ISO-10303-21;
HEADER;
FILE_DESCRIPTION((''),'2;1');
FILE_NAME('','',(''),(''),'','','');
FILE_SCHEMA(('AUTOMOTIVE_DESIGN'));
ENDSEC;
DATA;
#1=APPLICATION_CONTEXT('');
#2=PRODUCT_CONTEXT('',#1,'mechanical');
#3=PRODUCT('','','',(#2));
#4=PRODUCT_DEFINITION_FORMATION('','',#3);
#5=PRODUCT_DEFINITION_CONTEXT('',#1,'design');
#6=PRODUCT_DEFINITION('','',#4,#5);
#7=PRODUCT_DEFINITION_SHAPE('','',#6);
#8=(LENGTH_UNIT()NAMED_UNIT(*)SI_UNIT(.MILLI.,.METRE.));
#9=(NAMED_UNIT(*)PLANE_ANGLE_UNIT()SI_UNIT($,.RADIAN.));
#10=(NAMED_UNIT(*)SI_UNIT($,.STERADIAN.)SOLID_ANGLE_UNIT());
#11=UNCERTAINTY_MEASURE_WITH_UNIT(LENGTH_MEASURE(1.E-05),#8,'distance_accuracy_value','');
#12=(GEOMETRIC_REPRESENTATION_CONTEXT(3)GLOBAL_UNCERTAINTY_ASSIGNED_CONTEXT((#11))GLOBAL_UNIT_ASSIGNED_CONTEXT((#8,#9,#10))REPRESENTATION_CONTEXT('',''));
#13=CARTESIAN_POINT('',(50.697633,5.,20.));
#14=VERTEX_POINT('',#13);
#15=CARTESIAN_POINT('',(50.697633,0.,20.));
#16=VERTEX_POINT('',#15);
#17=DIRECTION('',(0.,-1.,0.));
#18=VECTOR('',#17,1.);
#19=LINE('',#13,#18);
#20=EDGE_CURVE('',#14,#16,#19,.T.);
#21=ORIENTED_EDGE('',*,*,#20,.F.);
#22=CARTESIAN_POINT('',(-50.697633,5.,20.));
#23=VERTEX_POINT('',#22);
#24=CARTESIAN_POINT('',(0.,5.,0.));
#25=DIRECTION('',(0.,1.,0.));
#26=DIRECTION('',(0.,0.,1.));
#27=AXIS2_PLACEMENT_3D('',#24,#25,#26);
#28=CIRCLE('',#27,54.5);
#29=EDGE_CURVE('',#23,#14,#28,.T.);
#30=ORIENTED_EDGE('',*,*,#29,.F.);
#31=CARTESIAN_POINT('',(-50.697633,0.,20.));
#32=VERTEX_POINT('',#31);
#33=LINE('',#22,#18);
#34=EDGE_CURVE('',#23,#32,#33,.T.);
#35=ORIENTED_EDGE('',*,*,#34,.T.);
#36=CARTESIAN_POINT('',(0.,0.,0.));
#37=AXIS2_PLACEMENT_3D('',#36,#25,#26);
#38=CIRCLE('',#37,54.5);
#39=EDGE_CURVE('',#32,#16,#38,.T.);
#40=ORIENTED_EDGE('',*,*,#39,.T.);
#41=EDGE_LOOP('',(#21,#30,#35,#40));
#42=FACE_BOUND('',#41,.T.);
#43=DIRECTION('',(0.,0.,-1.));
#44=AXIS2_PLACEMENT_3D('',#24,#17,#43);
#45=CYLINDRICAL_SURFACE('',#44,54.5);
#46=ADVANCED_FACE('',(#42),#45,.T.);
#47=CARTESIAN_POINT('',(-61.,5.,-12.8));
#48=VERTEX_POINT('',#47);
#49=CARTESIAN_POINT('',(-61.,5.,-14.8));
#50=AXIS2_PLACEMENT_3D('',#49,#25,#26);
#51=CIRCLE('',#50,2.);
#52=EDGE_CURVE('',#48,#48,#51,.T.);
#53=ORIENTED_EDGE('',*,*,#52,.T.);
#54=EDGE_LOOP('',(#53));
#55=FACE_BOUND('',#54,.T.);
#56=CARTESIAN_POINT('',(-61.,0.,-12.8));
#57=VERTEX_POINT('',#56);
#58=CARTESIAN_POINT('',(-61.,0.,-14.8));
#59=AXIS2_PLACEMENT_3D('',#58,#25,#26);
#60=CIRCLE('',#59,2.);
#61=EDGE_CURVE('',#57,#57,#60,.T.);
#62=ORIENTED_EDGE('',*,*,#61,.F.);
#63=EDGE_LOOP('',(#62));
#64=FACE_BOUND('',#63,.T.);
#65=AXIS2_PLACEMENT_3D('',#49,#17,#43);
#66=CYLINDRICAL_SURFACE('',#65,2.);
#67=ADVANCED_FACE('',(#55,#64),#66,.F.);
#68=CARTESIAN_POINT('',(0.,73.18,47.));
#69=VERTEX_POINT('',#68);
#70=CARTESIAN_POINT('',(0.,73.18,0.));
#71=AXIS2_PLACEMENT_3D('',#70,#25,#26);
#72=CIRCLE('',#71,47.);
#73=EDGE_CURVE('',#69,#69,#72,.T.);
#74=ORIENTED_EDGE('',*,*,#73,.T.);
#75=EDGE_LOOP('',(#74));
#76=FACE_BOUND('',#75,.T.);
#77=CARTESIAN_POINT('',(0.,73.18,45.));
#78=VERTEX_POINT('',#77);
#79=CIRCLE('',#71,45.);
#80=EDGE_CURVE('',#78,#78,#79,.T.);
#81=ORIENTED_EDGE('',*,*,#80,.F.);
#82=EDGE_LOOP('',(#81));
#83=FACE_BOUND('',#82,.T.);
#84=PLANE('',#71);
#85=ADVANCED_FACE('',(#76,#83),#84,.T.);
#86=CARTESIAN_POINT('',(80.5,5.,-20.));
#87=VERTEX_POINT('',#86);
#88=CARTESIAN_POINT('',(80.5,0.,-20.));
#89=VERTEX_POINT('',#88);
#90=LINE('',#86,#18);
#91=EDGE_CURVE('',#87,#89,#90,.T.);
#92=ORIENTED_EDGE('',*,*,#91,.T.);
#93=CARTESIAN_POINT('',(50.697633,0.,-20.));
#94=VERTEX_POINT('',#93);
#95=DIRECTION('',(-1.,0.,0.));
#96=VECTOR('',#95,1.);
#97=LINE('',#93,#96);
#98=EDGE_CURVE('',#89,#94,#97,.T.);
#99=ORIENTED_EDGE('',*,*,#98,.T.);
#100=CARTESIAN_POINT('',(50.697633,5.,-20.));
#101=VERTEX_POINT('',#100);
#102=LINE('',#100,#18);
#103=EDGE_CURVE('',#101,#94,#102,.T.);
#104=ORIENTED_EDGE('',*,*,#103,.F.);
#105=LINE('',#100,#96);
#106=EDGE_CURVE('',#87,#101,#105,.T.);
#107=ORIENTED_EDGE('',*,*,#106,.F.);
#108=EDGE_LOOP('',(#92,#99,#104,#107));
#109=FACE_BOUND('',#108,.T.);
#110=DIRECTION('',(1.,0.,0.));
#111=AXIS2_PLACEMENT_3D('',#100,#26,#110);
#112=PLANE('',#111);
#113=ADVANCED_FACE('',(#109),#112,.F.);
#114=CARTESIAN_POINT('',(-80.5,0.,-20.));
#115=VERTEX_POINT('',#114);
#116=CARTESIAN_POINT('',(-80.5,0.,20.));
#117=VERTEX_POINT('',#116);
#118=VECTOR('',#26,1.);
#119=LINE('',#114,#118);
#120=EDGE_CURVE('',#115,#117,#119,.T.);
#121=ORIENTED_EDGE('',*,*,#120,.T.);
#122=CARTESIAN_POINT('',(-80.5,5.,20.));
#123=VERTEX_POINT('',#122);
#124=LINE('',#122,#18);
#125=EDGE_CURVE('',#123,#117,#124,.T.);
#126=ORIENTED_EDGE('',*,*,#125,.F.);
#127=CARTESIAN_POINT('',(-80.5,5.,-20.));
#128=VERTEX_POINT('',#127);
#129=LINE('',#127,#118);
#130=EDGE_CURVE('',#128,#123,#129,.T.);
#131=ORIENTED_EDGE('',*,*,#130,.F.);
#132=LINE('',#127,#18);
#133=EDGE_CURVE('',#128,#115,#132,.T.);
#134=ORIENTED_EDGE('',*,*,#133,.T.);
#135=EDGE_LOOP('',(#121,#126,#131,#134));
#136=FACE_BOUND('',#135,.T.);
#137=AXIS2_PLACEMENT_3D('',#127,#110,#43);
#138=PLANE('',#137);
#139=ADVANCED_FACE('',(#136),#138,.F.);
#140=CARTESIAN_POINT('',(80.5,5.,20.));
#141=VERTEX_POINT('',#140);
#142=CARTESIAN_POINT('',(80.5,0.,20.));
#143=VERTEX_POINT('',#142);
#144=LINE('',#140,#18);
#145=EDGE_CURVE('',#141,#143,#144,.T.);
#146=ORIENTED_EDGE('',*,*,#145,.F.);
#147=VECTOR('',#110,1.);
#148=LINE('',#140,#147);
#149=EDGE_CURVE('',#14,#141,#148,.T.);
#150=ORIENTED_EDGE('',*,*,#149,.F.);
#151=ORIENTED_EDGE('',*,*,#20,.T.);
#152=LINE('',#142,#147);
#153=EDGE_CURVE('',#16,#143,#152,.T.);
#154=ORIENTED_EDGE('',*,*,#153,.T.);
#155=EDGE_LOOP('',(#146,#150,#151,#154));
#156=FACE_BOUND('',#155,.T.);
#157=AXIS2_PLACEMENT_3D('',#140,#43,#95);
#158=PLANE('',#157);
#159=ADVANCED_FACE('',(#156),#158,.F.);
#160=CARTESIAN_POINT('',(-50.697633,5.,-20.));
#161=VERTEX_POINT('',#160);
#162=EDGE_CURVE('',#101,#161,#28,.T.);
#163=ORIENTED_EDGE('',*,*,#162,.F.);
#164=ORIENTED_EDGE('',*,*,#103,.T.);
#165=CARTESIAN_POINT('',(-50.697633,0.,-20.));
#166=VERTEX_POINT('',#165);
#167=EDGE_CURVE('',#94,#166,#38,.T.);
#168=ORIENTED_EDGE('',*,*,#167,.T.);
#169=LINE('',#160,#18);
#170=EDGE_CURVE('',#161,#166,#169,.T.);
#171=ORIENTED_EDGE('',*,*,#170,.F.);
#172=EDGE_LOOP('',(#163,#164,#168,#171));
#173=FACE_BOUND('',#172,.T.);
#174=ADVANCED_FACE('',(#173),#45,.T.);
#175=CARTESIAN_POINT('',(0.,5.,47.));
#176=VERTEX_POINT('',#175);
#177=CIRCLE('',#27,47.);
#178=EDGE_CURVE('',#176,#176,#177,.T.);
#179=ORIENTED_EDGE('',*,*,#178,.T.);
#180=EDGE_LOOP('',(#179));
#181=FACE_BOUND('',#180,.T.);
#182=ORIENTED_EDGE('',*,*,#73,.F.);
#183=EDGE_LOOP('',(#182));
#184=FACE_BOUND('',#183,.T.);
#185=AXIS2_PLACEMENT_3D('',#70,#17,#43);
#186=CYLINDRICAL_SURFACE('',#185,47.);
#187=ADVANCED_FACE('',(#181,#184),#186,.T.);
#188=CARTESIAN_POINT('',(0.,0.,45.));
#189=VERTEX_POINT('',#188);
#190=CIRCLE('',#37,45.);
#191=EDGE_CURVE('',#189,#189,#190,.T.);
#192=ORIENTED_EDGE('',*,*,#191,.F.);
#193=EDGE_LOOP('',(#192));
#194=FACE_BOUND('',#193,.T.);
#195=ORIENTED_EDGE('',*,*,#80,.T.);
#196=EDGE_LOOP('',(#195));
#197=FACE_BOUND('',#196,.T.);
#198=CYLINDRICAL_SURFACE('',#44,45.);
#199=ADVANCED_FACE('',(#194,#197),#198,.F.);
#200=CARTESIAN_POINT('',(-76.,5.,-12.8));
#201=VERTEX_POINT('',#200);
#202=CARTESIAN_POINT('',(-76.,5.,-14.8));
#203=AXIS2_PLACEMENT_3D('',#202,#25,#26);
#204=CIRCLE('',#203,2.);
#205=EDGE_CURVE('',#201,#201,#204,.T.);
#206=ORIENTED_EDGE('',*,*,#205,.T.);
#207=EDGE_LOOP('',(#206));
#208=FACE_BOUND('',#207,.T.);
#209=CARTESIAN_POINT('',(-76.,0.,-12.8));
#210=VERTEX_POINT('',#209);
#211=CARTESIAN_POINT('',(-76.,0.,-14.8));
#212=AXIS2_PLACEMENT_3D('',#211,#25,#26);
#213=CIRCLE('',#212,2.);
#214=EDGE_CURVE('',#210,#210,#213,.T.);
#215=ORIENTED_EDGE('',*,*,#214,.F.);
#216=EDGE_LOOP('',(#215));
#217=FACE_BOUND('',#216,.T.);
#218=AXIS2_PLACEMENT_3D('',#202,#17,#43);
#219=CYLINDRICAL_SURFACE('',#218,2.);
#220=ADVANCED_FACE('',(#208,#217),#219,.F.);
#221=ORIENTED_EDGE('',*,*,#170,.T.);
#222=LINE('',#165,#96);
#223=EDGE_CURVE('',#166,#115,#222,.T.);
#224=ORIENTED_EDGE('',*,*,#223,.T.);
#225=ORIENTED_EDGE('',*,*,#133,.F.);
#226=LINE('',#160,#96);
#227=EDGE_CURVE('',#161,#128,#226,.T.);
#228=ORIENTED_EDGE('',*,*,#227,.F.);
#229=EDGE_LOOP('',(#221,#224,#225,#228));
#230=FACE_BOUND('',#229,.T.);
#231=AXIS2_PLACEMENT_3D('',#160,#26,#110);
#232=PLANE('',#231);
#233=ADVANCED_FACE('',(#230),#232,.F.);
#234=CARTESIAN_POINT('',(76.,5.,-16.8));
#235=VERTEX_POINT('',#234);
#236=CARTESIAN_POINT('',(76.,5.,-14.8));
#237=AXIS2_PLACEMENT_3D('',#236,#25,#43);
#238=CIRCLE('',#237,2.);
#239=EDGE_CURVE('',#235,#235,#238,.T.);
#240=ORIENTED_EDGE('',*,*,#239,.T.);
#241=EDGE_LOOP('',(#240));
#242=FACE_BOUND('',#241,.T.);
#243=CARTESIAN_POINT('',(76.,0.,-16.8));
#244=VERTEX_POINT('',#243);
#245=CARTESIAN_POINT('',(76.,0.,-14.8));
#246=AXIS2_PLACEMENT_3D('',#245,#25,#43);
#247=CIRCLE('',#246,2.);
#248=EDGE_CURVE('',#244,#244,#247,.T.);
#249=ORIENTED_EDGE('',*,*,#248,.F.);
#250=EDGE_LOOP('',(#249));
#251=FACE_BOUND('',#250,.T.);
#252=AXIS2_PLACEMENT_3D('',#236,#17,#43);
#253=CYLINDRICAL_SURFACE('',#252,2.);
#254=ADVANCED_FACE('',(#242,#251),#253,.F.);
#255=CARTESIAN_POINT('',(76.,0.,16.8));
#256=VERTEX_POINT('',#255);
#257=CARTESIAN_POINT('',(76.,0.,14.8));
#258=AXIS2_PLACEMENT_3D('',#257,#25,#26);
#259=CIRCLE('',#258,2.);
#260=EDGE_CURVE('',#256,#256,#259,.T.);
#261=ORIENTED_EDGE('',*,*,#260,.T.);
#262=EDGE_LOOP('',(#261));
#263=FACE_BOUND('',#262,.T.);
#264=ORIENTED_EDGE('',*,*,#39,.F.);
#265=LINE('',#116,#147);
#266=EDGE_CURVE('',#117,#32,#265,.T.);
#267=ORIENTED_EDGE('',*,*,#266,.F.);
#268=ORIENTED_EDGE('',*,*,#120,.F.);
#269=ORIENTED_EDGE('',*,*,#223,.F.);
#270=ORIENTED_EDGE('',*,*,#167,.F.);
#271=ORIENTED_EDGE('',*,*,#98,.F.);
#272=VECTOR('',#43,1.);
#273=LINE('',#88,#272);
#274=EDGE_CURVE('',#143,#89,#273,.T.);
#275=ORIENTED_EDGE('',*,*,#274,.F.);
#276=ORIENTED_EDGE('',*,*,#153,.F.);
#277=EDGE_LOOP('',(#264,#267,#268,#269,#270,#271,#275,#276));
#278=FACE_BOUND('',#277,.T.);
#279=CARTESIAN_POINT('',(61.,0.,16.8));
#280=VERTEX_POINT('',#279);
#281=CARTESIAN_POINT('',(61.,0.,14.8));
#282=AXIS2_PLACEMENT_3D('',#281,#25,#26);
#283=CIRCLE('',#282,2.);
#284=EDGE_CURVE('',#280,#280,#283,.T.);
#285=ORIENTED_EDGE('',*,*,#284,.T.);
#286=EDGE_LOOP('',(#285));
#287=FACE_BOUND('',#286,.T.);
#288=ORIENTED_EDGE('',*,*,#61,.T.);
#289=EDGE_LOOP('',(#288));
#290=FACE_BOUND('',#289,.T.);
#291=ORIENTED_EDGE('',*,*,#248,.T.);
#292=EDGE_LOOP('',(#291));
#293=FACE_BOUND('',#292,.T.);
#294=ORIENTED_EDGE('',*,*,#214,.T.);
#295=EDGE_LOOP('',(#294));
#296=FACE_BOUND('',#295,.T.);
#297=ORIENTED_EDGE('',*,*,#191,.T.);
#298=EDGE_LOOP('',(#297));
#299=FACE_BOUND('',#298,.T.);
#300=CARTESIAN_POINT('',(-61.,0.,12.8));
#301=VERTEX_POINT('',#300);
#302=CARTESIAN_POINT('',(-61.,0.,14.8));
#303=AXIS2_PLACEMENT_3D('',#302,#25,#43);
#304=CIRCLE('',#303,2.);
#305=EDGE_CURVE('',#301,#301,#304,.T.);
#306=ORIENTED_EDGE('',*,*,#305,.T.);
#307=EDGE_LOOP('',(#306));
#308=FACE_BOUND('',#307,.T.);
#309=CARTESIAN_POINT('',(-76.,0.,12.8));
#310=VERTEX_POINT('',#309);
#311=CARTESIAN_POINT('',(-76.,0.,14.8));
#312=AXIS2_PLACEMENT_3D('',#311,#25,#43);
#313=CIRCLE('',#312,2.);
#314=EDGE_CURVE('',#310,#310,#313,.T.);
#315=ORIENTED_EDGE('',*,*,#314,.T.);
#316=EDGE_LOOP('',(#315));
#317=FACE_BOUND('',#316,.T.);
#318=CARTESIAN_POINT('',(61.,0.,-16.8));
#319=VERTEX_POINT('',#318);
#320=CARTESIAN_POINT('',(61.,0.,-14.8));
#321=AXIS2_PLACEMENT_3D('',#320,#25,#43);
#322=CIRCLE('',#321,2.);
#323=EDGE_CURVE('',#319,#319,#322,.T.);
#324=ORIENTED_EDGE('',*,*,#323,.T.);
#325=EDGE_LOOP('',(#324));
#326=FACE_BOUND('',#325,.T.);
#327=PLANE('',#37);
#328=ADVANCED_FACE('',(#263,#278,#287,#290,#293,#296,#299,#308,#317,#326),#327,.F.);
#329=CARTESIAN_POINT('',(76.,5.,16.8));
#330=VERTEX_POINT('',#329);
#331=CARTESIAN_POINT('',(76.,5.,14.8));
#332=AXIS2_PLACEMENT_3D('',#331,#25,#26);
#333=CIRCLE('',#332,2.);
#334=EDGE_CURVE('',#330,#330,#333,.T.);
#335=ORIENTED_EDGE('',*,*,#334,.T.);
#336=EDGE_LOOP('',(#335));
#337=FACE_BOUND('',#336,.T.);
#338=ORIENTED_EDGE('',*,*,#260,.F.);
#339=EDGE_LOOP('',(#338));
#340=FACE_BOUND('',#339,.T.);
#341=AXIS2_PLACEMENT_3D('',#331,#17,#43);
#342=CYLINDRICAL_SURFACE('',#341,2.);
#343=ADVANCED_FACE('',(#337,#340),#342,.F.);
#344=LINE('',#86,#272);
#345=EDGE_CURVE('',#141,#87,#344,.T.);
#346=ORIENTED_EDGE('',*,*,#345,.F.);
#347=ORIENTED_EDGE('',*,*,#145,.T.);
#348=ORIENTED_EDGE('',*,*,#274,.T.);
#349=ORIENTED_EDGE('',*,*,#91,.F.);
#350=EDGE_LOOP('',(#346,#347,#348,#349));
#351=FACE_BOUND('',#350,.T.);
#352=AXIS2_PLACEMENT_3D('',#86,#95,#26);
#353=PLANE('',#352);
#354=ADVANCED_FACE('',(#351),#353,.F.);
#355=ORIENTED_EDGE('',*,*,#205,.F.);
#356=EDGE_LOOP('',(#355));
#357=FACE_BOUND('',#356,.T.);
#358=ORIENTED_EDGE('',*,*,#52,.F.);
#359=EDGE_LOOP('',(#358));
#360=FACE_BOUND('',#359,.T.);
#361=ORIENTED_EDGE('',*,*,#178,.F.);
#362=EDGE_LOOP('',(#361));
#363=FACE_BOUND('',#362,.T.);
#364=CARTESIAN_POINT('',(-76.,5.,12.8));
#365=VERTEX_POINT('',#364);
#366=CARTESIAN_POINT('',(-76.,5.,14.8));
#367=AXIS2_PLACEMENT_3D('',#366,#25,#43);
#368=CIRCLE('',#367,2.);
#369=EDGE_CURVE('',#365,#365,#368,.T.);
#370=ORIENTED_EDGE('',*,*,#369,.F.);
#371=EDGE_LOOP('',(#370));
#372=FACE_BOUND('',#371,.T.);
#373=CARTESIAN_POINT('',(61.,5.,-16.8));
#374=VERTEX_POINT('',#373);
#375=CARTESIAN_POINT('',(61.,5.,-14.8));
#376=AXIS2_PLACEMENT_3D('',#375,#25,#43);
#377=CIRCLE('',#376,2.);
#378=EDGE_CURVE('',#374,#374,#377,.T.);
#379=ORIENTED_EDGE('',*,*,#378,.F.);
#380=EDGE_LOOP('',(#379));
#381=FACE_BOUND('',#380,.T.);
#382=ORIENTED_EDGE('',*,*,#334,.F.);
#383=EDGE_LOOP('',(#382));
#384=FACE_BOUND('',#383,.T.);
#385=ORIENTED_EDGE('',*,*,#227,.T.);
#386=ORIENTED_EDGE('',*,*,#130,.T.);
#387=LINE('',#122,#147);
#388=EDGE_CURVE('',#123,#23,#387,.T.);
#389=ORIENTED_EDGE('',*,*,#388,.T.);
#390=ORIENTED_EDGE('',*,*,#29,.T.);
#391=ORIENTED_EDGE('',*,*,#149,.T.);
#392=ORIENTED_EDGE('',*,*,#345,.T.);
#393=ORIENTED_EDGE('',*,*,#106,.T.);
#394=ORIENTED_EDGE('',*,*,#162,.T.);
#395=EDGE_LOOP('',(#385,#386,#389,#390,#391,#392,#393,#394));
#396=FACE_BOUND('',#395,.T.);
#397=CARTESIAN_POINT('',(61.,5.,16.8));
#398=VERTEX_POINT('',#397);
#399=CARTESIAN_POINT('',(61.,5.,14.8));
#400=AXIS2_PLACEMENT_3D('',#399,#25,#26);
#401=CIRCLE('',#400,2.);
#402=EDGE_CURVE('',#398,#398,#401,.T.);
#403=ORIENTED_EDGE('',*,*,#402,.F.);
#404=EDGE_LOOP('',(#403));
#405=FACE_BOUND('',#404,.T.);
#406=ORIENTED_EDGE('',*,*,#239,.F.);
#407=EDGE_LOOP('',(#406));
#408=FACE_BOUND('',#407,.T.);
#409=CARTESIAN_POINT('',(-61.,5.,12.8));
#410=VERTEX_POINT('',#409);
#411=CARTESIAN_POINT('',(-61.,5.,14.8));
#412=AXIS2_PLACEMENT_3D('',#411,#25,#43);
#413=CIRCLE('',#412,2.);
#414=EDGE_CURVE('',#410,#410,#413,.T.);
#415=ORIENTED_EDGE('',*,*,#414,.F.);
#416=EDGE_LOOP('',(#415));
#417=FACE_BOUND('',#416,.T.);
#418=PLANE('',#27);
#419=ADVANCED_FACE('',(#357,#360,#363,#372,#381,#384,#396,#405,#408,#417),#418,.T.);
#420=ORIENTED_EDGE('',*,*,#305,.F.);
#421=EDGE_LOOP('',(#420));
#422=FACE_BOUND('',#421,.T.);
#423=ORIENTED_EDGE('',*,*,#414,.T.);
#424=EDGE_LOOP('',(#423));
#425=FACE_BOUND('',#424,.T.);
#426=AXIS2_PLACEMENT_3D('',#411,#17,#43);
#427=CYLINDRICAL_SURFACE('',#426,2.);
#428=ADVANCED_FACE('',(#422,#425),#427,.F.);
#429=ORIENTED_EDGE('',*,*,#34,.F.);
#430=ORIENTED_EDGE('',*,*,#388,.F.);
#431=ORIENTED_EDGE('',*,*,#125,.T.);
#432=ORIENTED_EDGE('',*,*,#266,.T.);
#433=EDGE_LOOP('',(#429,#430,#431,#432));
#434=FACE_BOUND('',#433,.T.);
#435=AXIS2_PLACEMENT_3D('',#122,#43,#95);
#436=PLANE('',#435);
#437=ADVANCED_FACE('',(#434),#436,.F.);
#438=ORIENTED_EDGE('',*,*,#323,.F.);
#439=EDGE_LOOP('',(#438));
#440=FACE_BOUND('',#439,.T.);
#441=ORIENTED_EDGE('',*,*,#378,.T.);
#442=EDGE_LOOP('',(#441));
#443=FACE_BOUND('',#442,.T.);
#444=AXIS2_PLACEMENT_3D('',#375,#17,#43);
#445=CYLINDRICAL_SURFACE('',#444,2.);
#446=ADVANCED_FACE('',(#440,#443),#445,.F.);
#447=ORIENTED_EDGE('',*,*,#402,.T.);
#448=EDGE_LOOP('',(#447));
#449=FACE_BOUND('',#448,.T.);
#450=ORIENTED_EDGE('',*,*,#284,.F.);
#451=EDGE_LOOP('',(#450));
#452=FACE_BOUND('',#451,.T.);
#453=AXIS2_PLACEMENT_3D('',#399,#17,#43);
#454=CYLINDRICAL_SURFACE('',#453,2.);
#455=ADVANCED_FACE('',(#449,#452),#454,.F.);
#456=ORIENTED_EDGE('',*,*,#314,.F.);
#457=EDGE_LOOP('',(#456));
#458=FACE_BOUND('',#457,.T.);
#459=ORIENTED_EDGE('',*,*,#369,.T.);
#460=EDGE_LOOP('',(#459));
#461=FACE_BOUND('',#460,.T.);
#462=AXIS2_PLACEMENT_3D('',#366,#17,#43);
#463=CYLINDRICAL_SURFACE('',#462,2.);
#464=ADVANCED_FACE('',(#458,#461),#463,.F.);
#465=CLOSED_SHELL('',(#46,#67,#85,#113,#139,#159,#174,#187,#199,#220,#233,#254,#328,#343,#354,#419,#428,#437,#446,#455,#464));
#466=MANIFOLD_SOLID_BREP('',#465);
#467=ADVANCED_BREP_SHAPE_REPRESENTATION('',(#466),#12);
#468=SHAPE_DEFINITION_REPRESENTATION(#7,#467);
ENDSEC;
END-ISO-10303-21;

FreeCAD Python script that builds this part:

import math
import FreeCAD as App
import Part
import Sketcher

V = App.Vector
Q = App.Units.Quantity

doc = App.newDocument("Part")
body = doc.addObject("PartDesign::Body", "Body")

# Sketch on XZ plane
sketch1 = doc.addObject("Sketcher::SketchObject", "Sketch")
body.addObject(sketch1)
sketch1.AttachmentSupport = (doc.XZ_Plane, [""])
sketch1.MapMode = "FlatFace"
sketch1.addGeometry([
    Part.LineSegment(V(80.5, -20, 0), V(50.7, -20, 0)),  # 0
    Part.ArcOfCircle(Part.Circle(V(0, 0, 0), V(0, 0, 1), 54.5), math.radians(-158), math.radians(-22)),  # 1
    Part.LineSegment(V(-50.7, -20, 0), V(-80.5, -20, 0)),  # 2
    Part.LineSegment(V(-80.5, -20, 0), V(-80.5, 20, 0)),  # 3
    Part.LineSegment(V(-80.5, 20, 0), V(-50.7, 20, 0)),  # 4
    Part.ArcOfCircle(Part.Circle(V(0, 0, 0), V(0, 0, 1), 54.5), math.radians(22), math.radians(158)),  # 5
    Part.LineSegment(V(50.7, 20, 0), V(80.5, 20, 0)),  # 6
    Part.LineSegment(V(80.5, 20, 0), V(80.5, -20, 0)),  # 7
    Part.Circle(V(76, 14.8, 0), V(0, 0, 1), 2),  # 8
    Part.Circle(V(61, 14.8, 0), V(0, 0, 1), 2),  # 9
    Part.Circle(V(-61, 14.8, 0), V(0, 0, 1), 2),  # 10
    Part.Circle(V(-76, 14.8, 0), V(0, 0, 1), 2),  # 11
    Part.Circle(V(76, -14.8, 0), V(0, 0, 1), 2),  # 12
    Part.Circle(V(61, -14.8, 0), V(0, 0, 1), 2),  # 13
    Part.Circle(V(0, 0, 0), V(0, 0, 1), 45),  # 14
    Part.Circle(V(-61, -14.8, 0), V(0, 0, 1), 2),  # 15
    Part.Circle(V(-76, -14.8, 0), V(0, 0, 1), 2),  # 16
], False)
sketch1.addConstraint([
    Sketcher.Constraint("Coincident", 0, 2, 1, 2),
    Sketcher.Constraint("Coincident", 1, 1, 2, 1),
    Sketcher.Constraint("Coincident", 2, 2, 3, 1),
    Sketcher.Constraint("Coincident", 3, 2, 4, 1),
    Sketcher.Constraint("Coincident", 4, 2, 5, 2),
    Sketcher.Constraint("Coincident", 5, 1, 6, 1),
    Sketcher.Constraint("Coincident", 6, 2, 7, 1),
    Sketcher.Constraint("Coincident", 7, 2, 0, 1),
    Sketcher.Constraint("Horizontal", 0),
    Sketcher.Constraint("Horizontal", 2),
    Sketcher.Constraint("Vertical", 3),
    Sketcher.Constraint("Horizontal", 4),
    Sketcher.Constraint("Horizontal", 6),
    Sketcher.Constraint("Vertical", 7),
    Sketcher.Constraint("Coincident", 1, 3, -1, 1),
    Sketcher.Constraint("Coincident", 5, 3, -1, 1),
    Sketcher.Constraint("Coincident", 14, 3, -1, 1),
    Sketcher.Constraint("Equal", 1, 5),
    Sketcher.Constraint("Equal", 8, 9),
    Sketcher.Constraint("Equal", 9, 10),
    Sketcher.Constraint("Equal", 10, 11),
    Sketcher.Constraint("Equal", 11, 12),
    Sketcher.Constraint("Equal", 12, 13),
    Sketcher.Constraint("Equal", 13, 15),
    Sketcher.Constraint("Equal", 15, 16),
    Sketcher.Constraint("Symmetric", 11, 3, 12, 3, -1, 1),
    Sketcher.Constraint("Symmetric", 10, 3, 13, 3, -1, 1),
    Sketcher.Constraint("Symmetric", 9, 3, 15, 3, -1, 1),
    Sketcher.Constraint("Symmetric", 8, 3, 16, 3, -1, 1),
    Sketcher.Constraint("Symmetric", 2, 2, 6, 2, -1, 1),
    Sketcher.Constraint("Symmetric", 9, 3, 10, 3, -2),
    Sketcher.Constraint("Symmetric", 8, 3, 11, 3, -2),
    Sketcher.Constraint("Horizontal", 8, 3, 9, 3),
    Sketcher.Constraint("Horizontal", 0, 2, 1, 1),
    Sketcher.Constraint("Horizontal", 4, 2, 5, 1),
    Sketcher.Constraint("Diameter", 8, Q("4 mm")),
    Sketcher.Constraint("Diameter", 14, Q("90 mm")),
    Sketcher.Constraint("Radius", 1, Q("54.5 mm")),
    Sketcher.Constraint("DistanceY", 3, 1, 3, 2, Q("40 mm")),
    Sketcher.Constraint("DistanceX", -1, 1, 8, 3, Q("76 mm")),
    Sketcher.Constraint("DistanceX", -1, 1, 9, 3, Q("61 mm")),
    Sketcher.Constraint("DistanceY", -1, 1, 8, 3, Q("14.8 mm")),
    Sketcher.Constraint("DistanceX", 2, 2, -1, 1, Q("80.5 mm")),
])
pad1 = doc.addObject("PartDesign::Pad", "Pad")
body.addObject(pad1)
pad1.Profile = sketch1
pad1.Length = 5
pad1.Reversed = True

# Sketch on XZ plane
sketch2 = doc.addObject("Sketcher::SketchObject", "Sketch001")
body.addObject(sketch2)
sketch2.AttachmentSupport = (doc.XZ_Plane, [""])
sketch2.MapMode = "FlatFace"
sketch2.AttachmentOffset = App.Placement(V(0, 0, -5), App.Rotation())
sketch2.addGeometry([
    Part.Circle(V(0, 0, 0), V(0, 0, 1), 47),
    Part.Circle(V(0, 0, 0), V(0, 0, 1), 45),
], False)
sketch2.addConstraint([
    Sketcher.Constraint("Coincident", 0, 3, -1, 1),
    Sketcher.Constraint("Coincident", 1, 3, -1, 1),
    Sketcher.Constraint("Diameter", 0, Q("94 mm")),
    Sketcher.Constraint("Diameter", 1, Q("90 mm")),
])
pad2 = doc.addObject("PartDesign::Pad", "Pad001")
body.addObject(pad2)
pad2.Profile = sketch2
pad2.Length = 68.18
pad2.Reversed = True

doc.recompute()
